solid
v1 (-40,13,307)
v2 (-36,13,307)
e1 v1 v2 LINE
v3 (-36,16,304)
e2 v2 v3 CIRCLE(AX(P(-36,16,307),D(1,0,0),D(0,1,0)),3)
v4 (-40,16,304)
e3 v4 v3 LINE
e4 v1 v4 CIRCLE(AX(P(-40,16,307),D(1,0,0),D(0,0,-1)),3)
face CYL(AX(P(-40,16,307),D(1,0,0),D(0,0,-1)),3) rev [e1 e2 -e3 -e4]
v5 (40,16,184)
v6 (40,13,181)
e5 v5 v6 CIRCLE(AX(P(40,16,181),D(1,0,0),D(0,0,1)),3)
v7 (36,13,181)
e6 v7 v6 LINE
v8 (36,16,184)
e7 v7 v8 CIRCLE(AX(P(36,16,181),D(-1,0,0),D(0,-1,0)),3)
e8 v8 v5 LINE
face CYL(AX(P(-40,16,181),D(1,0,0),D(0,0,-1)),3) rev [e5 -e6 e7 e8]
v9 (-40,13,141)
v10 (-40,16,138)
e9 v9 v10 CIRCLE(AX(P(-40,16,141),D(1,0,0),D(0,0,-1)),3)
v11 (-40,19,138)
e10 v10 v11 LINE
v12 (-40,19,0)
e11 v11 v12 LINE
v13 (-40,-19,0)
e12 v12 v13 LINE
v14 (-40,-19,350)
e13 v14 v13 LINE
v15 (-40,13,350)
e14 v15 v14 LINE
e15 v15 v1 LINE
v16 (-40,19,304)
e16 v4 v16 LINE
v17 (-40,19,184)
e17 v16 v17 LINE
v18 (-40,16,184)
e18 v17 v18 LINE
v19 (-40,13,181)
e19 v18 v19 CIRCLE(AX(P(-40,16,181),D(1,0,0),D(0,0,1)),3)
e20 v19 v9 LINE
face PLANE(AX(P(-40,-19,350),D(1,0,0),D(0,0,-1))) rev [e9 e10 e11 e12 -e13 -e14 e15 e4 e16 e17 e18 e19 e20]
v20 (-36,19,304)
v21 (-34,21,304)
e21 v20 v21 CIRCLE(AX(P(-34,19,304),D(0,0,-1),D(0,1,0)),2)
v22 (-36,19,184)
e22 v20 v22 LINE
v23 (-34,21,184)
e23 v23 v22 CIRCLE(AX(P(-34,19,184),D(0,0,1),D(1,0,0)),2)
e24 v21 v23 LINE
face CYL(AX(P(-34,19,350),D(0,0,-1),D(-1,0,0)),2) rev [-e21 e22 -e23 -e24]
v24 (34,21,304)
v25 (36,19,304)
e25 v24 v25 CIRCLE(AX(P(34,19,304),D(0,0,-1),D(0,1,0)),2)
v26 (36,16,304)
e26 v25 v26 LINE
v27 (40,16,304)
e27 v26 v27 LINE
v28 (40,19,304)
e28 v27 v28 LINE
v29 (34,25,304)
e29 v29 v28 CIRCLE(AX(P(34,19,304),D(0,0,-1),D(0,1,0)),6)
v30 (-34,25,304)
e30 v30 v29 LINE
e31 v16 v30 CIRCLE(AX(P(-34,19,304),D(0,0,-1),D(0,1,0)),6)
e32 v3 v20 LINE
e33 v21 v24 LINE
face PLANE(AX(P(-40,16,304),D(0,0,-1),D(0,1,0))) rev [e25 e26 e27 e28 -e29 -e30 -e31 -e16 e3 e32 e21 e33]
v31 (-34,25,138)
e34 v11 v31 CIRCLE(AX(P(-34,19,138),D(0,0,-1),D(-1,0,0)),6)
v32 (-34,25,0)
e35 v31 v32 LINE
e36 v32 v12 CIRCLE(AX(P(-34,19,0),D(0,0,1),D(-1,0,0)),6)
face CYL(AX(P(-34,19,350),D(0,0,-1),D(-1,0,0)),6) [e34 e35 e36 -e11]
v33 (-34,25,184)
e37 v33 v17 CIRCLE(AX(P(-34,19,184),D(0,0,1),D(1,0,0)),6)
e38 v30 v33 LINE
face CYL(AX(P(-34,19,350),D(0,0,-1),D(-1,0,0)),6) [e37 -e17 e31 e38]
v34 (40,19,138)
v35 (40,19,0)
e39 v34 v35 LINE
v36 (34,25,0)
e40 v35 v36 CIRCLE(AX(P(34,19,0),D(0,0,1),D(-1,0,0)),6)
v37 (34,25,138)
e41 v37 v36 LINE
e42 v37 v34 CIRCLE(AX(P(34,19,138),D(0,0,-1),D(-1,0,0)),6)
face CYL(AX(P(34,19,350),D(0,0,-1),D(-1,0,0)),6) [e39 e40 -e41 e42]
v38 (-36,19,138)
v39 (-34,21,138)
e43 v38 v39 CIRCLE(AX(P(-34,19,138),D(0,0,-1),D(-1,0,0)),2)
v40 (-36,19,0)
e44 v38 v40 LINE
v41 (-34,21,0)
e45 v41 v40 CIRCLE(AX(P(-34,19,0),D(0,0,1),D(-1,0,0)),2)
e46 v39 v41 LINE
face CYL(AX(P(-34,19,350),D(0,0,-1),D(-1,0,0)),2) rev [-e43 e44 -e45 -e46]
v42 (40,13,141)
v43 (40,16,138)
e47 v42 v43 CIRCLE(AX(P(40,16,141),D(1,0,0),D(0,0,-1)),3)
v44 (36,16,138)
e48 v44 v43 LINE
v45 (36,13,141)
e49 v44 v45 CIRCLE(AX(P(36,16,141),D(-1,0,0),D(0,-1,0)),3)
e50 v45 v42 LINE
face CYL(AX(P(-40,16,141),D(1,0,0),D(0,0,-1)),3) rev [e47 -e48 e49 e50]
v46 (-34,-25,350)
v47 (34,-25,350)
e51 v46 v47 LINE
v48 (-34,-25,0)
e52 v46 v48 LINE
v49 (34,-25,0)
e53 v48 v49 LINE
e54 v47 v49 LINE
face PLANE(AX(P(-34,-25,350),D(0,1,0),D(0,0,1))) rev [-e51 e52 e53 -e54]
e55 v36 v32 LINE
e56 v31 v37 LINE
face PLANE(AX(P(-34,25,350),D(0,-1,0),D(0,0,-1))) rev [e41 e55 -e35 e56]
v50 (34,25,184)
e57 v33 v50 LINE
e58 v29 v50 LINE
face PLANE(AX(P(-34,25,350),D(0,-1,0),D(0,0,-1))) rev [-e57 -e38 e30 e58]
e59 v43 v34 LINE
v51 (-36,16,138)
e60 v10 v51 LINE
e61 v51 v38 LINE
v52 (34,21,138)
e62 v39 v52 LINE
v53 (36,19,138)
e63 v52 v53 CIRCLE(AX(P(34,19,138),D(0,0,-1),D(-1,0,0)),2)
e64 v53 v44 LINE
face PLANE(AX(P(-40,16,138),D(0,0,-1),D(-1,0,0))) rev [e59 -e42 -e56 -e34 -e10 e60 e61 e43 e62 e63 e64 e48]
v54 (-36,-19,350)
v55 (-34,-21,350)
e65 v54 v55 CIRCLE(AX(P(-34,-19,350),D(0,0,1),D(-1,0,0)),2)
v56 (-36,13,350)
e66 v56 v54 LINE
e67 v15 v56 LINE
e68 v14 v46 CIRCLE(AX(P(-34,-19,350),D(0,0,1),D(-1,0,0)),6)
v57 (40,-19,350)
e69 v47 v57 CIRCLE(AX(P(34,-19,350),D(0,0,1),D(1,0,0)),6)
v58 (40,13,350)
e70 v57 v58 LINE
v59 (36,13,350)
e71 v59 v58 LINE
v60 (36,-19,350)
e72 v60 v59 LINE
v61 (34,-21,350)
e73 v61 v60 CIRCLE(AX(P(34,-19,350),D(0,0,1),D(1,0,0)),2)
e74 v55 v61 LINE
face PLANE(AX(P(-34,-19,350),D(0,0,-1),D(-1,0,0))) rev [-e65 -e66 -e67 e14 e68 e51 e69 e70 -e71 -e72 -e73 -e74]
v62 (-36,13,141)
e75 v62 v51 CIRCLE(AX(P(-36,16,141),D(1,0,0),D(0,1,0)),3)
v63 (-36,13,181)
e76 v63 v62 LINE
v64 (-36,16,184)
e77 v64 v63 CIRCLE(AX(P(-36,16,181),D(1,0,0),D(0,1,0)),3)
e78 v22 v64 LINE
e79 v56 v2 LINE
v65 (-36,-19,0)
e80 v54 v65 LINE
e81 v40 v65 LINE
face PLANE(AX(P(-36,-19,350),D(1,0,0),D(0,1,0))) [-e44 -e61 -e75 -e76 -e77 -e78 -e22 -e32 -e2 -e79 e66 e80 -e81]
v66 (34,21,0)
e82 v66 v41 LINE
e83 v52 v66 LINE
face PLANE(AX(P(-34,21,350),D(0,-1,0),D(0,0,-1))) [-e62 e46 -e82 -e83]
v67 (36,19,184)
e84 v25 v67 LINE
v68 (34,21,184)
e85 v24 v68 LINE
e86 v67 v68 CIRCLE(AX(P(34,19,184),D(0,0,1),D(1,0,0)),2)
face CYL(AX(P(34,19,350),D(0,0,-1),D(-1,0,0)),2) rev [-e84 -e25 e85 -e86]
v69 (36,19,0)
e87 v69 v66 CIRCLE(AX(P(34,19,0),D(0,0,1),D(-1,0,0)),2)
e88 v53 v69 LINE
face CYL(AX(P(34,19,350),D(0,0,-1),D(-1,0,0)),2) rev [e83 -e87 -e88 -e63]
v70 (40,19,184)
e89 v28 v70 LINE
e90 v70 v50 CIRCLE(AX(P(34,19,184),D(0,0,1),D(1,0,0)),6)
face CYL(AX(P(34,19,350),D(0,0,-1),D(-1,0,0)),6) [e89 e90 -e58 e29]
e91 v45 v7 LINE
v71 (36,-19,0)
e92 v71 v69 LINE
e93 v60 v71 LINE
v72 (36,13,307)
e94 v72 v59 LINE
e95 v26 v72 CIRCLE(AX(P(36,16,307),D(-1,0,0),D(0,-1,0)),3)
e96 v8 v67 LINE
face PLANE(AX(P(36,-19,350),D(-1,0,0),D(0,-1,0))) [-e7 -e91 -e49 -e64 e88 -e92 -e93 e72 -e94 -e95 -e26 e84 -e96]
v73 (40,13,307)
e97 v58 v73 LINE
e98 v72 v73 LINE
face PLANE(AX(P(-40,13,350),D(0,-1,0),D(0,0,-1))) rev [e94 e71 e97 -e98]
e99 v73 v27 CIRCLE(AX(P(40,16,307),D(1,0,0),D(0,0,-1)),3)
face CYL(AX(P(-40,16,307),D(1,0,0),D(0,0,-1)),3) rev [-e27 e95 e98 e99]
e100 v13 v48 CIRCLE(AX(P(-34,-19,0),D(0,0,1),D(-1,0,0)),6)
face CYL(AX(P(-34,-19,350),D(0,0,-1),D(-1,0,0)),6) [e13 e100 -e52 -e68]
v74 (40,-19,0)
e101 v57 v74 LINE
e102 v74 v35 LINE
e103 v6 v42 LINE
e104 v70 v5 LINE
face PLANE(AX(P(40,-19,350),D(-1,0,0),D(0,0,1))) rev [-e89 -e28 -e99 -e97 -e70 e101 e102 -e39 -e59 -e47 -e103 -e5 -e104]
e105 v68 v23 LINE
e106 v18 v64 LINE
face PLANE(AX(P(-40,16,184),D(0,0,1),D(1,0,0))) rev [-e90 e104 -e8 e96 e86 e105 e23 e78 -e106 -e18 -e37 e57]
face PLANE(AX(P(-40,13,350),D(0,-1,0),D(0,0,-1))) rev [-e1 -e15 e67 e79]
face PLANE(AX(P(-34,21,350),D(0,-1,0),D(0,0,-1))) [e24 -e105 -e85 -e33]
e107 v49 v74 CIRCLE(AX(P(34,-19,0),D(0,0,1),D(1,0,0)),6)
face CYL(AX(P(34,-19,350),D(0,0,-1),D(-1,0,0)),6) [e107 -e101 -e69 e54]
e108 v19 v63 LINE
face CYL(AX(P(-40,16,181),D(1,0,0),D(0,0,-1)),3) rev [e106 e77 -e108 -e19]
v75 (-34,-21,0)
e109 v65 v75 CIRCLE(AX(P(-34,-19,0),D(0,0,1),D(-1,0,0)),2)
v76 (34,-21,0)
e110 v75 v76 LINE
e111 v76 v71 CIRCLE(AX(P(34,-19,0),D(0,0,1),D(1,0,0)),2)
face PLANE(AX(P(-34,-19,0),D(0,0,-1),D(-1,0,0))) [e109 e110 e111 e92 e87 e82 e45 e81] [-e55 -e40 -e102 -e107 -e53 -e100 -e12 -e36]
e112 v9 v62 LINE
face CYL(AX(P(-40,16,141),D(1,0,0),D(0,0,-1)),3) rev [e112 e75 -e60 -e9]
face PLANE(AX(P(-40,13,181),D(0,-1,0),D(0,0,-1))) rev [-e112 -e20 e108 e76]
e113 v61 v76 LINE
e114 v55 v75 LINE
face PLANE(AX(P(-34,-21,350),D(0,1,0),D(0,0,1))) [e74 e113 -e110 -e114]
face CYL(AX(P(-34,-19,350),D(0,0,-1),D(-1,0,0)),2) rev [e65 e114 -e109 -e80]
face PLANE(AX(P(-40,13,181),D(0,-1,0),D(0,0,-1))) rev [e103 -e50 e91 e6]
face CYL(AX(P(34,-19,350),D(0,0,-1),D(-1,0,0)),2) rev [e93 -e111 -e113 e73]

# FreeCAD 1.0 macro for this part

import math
import FreeCAD as App
import Part
import Sketcher
from FreeCAD import Vector

doc = App.newDocument("Part")
body = doc.addObject("PartDesign::Body", "Body")

# Sketch on XY plane
sketch1 = body.newObject("Sketcher::SketchObject", "Sketch")
sketch1.AttachmentSupport = (doc.getObject("XY_Plane"), [""])
sketch1.MapMode = "FlatFace"
sketch1.addGeometry([
    Part.LineSegment(Vector(-34, -25, 0), Vector(34, -25, 0)),  # 0
    Part.ArcOfCircle(Part.Circle(Vector(34, -19, 0), Vector(0, 0, 1), 6), math.radians(-90), math.radians(0)),  # 1
    Part.LineSegment(Vector(40, -19, 0), Vector(40, 19, 0)),  # 2
    Part.ArcOfCircle(Part.Circle(Vector(34, 19, 0), Vector(0, 0, 1), 6), math.radians(0), math.radians(90)),  # 3
    Part.LineSegment(Vector(34, 25, 0), Vector(-34, 25, 0)),  # 4
    Part.ArcOfCircle(Part.Circle(Vector(-34, 19, 0), Vector(0, 0, 1), 6), math.radians(90), math.radians(180)),  # 5
    Part.LineSegment(Vector(-40, 19, 0), Vector(-40, -19, 0)),  # 6
    Part.ArcOfCircle(Part.Circle(Vector(-34, -19, 0), Vector(0, 0, 1), 6), math.radians(180), math.radians(270)),  # 7
    Part.LineSegment(Vector(34, -21, 0), Vector(-34, -21, 0)),  # 8
    Part.ArcOfCircle(Part.Circle(Vector(-34, -19, 0), Vector(0, 0, 1), 2), math.radians(-180), math.radians(-90)),  # 9
    Part.LineSegment(Vector(-36, -19, 0), Vector(-36, 19, 0)),  # 10
    Part.ArcOfCircle(Part.Circle(Vector(-34, 19, 0), Vector(0, 0, 1), 2), math.radians(90), math.radians(180)),  # 11
    Part.LineSegment(Vector(-34, 21, 0), Vector(34, 21, 0)),  # 12
    Part.ArcOfCircle(Part.Circle(Vector(34, 19, 0), Vector(0, 0, 1), 2), math.radians(0), math.radians(90)),  # 13
    Part.LineSegment(Vector(36, 19, 0), Vector(36, -19, 0)),  # 14
    Part.ArcOfCircle(Part.Circle(Vector(34, -19, 0), Vector(0, 0, 1), 2), math.radians(-90), math.radians(0)),  # 15
], False)
sketch1.addConstraint([
    Sketcher.Constraint("Tangent", 0, 2, 1, 1),
    Sketcher.Constraint("Tangent", 1, 2, 2, 1),
    Sketcher.Constraint("Tangent", 2, 2, 3, 1),
    Sketcher.Constraint("Tangent", 3, 2, 4, 1),
    Sketcher.Constraint("Tangent", 4, 2, 5, 1),
    Sketcher.Constraint("Tangent", 5, 2, 6, 1),
    Sketcher.Constraint("Tangent", 6, 2, 7, 1),
    Sketcher.Constraint("Tangent", 7, 2, 0, 1),
    Sketcher.Constraint("Tangent", 8, 2, 9, 2),
    Sketcher.Constraint("Tangent", 9, 1, 10, 1),
    Sketcher.Constraint("Tangent", 10, 2, 11, 2),
    Sketcher.Constraint("Tangent", 11, 1, 12, 1),
    Sketcher.Constraint("Tangent", 12, 2, 13, 2),
    Sketcher.Constraint("Tangent", 13, 1, 14, 1),
    Sketcher.Constraint("Tangent", 14, 2, 15, 2),
    Sketcher.Constraint("Tangent", 15, 1, 8, 1),
    Sketcher.Constraint("Horizontal", 0),
    Sketcher.Constraint("Vertical", 2),
    Sketcher.Constraint("Horizontal", 4),
    Sketcher.Constraint("Vertical", 6),
    Sketcher.Constraint("Horizontal", 8),
    Sketcher.Constraint("Vertical", 10),
    Sketcher.Constraint("Horizontal", 12),
    Sketcher.Constraint("Vertical", 14),
    Sketcher.Constraint("Coincident", 9, 3, 7, 3),
    Sketcher.Constraint("Coincident", 11, 3, 5, 3),
    Sketcher.Constraint("Coincident", 13, 3, 3, 3),
    Sketcher.Constraint("Equal", 1, 3),
    Sketcher.Constraint("Equal", 3, 5),
    Sketcher.Constraint("Equal", 5, 7),
    Sketcher.Constraint("Equal", 13, 15),
    Sketcher.Constraint("Symmetric", 1, 3, 5, 3, -1, 1),
    Sketcher.Constraint("Radius", 1, 6.0),
    Sketcher.Constraint("Radius", 9, 2.0),
    Sketcher.Constraint("DistanceX", 0, 1, 0, 2, 68.0),
    Sketcher.Constraint("DistanceY", 2, 1, 2, 2, 38.0),
])
pad1 = body.newObject("PartDesign::Pad", "Pad")
pad1.Profile = sketch1
pad1.Length = 350

# Sketch on YZ plane
sketch2 = body.newObject("Sketcher::SketchObject", "Sketch001")
sketch2.AttachmentSupport = (doc.getObject("YZ_Plane"), [""])
sketch2.MapMode = "FlatFace"
sketch2.AttachmentOffset = App.Placement(Vector(0, 0, 40), App.Rotation())
sketch2.addGeometry([
    Part.LineSegment(Vector(13, 350, 0), Vector(13, 307, 0)),  # 0
    Part.ArcOfCircle(Part.Circle(Vector(16, 307, 0), Vector(0, 0, 1), 3), math.radians(180), math.radians(270)),  # 1
    Part.LineSegment(Vector(16, 304, 0), Vector(25, 304, 0)),  # 2
    Part.LineSegment(Vector(25, 304, 0), Vector(25, 350, 0)),  # 3
    Part.LineSegment(Vector(25, 350, 0), Vector(13, 350, 0)),  # 4
    Part.LineSegment(Vector(13, 181, 0), Vector(13, 141, 0)),  # 5
    Part.ArcOfCircle(Part.Circle(Vector(16, 141, 0), Vector(0, 0, 1), 3), math.radians(180), math.radians(270)),  # 6
    Part.LineSegment(Vector(16, 138, 0), Vector(25, 138, 0)),  # 7
    Part.LineSegment(Vector(25, 138, 0), Vector(25, 184, 0)),  # 8
    Part.LineSegment(Vector(25, 184, 0), Vector(16, 184, 0)),  # 9
    Part.ArcOfCircle(Part.Circle(Vector(16, 181, 0), Vector(0, 0, 1), 3), math.radians(90), math.radians(180)),  # 10
], False)
sketch2.addConstraint([
    Sketcher.Constraint("Tangent", 0, 2, 1, 1),
    Sketcher.Constraint("Tangent", 1, 2, 2, 1),
    Sketcher.Constraint("Coincident", 2, 2, 3, 1),
    Sketcher.Constraint("Coincident", 3, 2, 4, 1),
    Sketcher.Constraint("Coincident", 4, 2, 0, 1),
    Sketcher.Constraint("Tangent", 5, 2, 6, 1),
    Sketcher.Constraint("Tangent", 6, 2, 7, 1),
    Sketcher.Constraint("Coincident", 7, 2, 8, 1),
    Sketcher.Constraint("Coincident", 8, 2, 9, 1),
    Sketcher.Constraint("Tangent", 9, 2, 10, 1),
    Sketcher.Constraint("Tangent", 10, 2, 5, 1),
    Sketcher.Constraint("Vertical", 0),
    Sketcher.Constraint("Horizontal", 2),
    Sketcher.Constraint("Vertical", 3),
    Sketcher.Constraint("Horizontal", 4),
    Sketcher.Constraint("Vertical", 5),
    Sketcher.Constraint("Horizontal", 7),
    Sketcher.Constraint("Vertical", 8),
    Sketcher.Constraint("Horizontal", 9),
    Sketcher.Constraint("Equal", 1, 6),
    Sketcher.Constraint("Equal", 6, 10),
    Sketcher.Constraint("Vertical", 1, 3, 6, 3),
    Sketcher.Constraint("Vertical", 3, 2, 7, 2),
    Sketcher.Constraint("Equal", 3, 8),
    Sketcher.Constraint("Radius", 1, 3.0),
    Sketcher.Constraint("DistanceX", 2, 1, 2, 2, 9.0),
    Sketcher.Constraint("DistanceY", 0, 2, 0, 1, 43.0),
    Sketcher.Constraint("DistanceX", -1, 1, 1, 3, 16.0),
    Sketcher.Constraint("DistanceY", -1, 1, 1, 3, 307.0),
    Sketcher.Constraint("DistanceY", -1, 1, 6, 3, 141.0),
])
pocket1 = body.newObject("PartDesign::Pocket", "Pocket")
pocket1.Profile = sketch2
pocket1.Type = "ThroughAll"

doc.recompute()
